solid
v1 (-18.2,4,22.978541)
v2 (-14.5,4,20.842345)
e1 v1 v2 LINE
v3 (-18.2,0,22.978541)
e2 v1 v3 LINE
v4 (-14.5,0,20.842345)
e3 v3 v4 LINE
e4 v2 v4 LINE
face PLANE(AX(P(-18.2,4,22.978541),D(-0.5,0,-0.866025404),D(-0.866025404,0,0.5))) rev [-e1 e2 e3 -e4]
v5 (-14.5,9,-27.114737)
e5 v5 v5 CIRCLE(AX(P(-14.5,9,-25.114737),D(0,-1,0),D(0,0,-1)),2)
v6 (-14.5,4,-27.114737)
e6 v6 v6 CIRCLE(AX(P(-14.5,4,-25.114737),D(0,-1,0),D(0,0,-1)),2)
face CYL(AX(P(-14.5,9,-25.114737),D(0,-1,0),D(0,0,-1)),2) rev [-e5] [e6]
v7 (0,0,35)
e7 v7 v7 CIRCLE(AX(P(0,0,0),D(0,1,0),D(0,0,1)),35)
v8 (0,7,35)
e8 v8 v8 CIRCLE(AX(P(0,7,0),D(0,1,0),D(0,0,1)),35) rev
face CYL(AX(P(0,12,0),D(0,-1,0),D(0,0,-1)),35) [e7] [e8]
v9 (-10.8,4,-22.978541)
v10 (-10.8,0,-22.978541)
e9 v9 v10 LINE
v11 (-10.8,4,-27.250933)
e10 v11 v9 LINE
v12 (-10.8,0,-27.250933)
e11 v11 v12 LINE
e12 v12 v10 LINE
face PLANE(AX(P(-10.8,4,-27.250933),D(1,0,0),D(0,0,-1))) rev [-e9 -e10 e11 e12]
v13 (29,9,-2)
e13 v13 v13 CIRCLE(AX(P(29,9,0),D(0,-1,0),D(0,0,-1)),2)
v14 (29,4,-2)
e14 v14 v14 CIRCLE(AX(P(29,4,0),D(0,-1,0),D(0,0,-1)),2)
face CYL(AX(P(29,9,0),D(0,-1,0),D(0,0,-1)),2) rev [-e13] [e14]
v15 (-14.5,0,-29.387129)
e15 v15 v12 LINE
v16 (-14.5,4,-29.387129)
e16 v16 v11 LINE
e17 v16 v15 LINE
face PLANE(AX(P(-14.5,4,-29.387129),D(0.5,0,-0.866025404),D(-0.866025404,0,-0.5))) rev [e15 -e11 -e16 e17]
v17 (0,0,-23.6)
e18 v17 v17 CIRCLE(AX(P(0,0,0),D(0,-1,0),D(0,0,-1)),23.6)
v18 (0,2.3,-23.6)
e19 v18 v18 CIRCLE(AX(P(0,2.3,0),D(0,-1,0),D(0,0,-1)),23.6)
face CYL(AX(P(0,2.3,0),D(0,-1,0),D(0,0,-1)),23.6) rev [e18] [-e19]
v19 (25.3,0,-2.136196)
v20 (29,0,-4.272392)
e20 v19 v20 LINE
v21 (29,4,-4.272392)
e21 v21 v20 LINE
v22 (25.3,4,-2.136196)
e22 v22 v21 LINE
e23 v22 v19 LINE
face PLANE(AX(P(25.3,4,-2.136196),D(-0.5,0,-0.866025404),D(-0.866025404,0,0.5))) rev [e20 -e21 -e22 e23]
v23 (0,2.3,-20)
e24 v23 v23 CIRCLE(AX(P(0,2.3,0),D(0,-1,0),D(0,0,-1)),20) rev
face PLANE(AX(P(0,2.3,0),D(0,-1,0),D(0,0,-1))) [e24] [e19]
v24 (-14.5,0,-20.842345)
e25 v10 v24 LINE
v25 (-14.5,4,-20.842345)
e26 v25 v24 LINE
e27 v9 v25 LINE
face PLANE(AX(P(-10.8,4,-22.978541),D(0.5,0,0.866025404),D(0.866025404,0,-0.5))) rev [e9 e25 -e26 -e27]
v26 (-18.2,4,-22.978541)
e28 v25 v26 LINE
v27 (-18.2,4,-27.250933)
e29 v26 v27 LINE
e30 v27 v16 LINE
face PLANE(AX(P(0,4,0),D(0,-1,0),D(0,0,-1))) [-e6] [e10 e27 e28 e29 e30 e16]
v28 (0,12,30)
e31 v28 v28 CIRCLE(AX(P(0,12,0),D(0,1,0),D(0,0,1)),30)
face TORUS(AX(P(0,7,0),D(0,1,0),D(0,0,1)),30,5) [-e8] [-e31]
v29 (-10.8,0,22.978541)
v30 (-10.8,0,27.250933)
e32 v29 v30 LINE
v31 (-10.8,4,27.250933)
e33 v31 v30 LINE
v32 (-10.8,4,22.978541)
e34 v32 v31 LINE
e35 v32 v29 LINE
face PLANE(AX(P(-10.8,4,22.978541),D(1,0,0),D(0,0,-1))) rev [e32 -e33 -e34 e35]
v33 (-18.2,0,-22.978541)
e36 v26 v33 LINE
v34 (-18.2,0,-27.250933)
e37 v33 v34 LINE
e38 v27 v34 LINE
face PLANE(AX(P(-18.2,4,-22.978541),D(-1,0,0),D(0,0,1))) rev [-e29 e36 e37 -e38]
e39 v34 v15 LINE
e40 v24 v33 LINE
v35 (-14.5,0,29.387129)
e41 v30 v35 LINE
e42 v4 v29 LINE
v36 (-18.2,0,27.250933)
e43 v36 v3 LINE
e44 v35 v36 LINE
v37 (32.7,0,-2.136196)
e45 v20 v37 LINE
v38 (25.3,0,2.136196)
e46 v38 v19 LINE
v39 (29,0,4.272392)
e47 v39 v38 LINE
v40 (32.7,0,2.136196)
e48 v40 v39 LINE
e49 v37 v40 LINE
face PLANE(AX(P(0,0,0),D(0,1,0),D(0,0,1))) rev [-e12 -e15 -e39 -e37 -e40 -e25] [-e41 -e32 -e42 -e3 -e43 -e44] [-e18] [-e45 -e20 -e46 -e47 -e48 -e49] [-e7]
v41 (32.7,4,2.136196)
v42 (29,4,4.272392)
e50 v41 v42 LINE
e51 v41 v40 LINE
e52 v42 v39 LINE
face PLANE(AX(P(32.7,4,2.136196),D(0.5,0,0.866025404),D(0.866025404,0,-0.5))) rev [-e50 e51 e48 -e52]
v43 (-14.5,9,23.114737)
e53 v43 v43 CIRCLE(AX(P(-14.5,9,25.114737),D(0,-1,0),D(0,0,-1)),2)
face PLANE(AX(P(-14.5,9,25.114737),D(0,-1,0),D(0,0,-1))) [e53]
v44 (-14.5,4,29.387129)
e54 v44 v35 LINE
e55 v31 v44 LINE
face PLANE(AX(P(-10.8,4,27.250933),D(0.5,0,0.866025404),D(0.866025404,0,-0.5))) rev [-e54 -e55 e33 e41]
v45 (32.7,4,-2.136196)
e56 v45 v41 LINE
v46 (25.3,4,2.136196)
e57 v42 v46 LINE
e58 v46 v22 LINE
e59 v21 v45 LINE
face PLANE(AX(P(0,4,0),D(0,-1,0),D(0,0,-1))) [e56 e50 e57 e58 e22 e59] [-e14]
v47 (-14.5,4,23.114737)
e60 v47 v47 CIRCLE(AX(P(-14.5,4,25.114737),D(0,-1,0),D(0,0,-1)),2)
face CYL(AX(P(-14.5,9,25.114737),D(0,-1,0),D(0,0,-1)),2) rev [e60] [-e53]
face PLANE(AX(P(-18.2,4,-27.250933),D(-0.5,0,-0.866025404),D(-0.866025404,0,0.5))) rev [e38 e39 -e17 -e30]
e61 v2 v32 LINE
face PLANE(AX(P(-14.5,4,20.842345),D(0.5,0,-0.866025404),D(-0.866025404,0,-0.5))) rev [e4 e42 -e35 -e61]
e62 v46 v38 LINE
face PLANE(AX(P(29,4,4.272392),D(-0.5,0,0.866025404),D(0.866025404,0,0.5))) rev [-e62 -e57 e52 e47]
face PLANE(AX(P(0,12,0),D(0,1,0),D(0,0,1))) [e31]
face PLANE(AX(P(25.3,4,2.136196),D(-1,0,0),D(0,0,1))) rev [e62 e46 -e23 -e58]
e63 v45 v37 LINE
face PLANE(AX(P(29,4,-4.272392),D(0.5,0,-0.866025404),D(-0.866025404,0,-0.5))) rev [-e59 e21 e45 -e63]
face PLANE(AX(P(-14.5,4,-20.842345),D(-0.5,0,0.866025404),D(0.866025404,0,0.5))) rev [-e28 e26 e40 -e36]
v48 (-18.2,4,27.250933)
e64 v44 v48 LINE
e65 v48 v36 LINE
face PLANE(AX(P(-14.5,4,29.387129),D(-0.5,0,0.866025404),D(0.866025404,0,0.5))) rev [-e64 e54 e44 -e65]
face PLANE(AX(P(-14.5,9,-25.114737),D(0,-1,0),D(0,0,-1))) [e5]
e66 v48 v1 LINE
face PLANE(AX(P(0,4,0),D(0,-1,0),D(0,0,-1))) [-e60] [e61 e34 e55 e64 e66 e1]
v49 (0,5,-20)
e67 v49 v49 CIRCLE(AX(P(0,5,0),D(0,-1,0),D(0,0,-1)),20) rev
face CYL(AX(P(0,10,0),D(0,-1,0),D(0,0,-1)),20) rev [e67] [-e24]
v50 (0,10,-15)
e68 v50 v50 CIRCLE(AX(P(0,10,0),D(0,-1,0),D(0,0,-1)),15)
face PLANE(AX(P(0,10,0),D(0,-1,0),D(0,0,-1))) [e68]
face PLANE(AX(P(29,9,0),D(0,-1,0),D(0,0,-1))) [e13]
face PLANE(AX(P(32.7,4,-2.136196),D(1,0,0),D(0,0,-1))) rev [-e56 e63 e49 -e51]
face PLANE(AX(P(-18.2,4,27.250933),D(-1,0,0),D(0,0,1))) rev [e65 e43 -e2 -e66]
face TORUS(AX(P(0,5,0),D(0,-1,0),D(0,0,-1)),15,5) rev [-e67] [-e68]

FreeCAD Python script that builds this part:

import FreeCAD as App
import Part
import Sketcher
from FreeCAD import Vector
Q = App.Units.Quantity


def edges_at(feature, points):
    """Names of the edges that pass closest to the given points."""
    edges = feature.Shape.Edges
    near = lambda p: min(range(len(edges)), key=lambda i: edges[i].distToShape(Part.Vertex(*p))[0])
    return sorted({f"Edge{near(p) + 1}" for p in points})


def add_polygon(sketch, points):
    """Adds a closed chain of lines whose ends are joined by coincident constraints."""
    first, n = sketch.GeometryCount, len(points)
    for a, b in zip(points, points[1:] + points[:1]):
        sketch.addGeometry(Part.LineSegment(App.Vector(*a, 0), App.Vector(*b, 0)), False)
    for i in range(n):
        sketch.addConstraint(Sketcher.Constraint("Coincident", first + i, 2, first + (i + 1) % n, 1))

doc = App.newDocument("Part")
body = doc.addObject("PartDesign::Body", "Body")

# Sketch on XZ plane
sketch1 = doc.addObject("Sketcher::SketchObject", "Sketch")
body.addObject(sketch1)
sketch1.AttachmentSupport = (doc.XZ_Plane, [""])
sketch1.MapMode = "FlatFace"
sketch1.addGeometry(Part.Circle(Vector(0, 0, 0), Vector(0, 0, 1), 35), False)
sketch1.addConstraint(Sketcher.Constraint("Coincident", 0, 3, -1, 1))
sketch1.addConstraint(Sketcher.Constraint("Diameter", 0, 70.0))
pad1 = doc.addObject("PartDesign::Pad", "Pad")
body.addObject(pad1)
pad1.Profile = sketch1
pad1.Length = 12
pad1.Reversed = True

# Sketch on XZ plane
sketch2 = doc.addObject("Sketcher::SketchObject", "Sketch001")
body.addObject(sketch2)
sketch2.AttachmentSupport = (doc.XZ_Plane, [""])
sketch2.MapMode = "FlatFace"
add_polygon(sketch2, [(-18.2, -27.3), (-14.5, -29.4), (-10.8, -27.3), (-10.8, -23), (-14.5, -20.8), (-18.2, -23)])  # lines 0-5
add_polygon(sketch2, [(32.7, -2.1), (32.7, 2.1), (29, 4.3), (25.3, 2.1), (25.3, -2.1), (29, -4.3)])  # lines 6-11
add_polygon(sketch2, [(-14.5, 29.4), (-18.2, 27.3), (-18.2, 23), (-14.5, 20.8), (-10.8, 23), (-10.8, 27.3)])  # lines 12-17
sketch2.addConstraint(Sketcher.Constraint("Vertical", 2))
sketch2.addConstraint(Sketcher.Constraint("Vertical", 5))
sketch2.addConstraint(Sketcher.Constraint("Vertical", 6))
sketch2.addConstraint(Sketcher.Constraint("Vertical", 9))
sketch2.addConstraint(Sketcher.Constraint("Vertical", 13))
sketch2.addConstraint(Sketcher.Constraint("Vertical", 16))
sketch2.addConstraint(Sketcher.Constraint("Symmetric", 7, 2, 10, 2, -1))
sketch2.addConstraint(Sketcher.Constraint("Symmetric", 5, 2, 12, 2, -1))
sketch2.addConstraint(Sketcher.Constraint("Symmetric", 3, 2, 14, 2, -1))
sketch2.addConstraint(Sketcher.Constraint("Symmetric", 2, 2, 15, 2, -1))
sketch2.addConstraint(Sketcher.Constraint("Symmetric", 0, 2, 17, 2, -1))
sketch2.addConstraint(Sketcher.Constraint("Parallel", 0, 3))
sketch2.addConstraint(Sketcher.Constraint("Parallel", 1, 4))
sketch2.addConstraint(Sketcher.Constraint("Parallel", 3, 7))
sketch2.addConstraint(Sketcher.Constraint("Parallel", 4, 8))
sketch2.addConstraint(Sketcher.Constraint("Parallel", 7, 10))
sketch2.addConstraint(Sketcher.Constraint("Parallel", 8, 11))
sketch2.addConstraint(Sketcher.Constraint("Parallel", 11, 12))
sketch2.addConstraint(Sketcher.Constraint("Parallel", 10, 14))
sketch2.addConstraint(Sketcher.Constraint("Parallel", 14, 17))
sketch2.addConstraint(Sketcher.Constraint("Horizontal", 2, 2, 4, 2))
sketch2.addConstraint(Sketcher.Constraint("Horizontal", 1, 2, 5, 2))
sketch2.addConstraint(Sketcher.Constraint("Horizontal", 6, 2, 8, 2))
sketch2.addConstraint(Sketcher.Constraint("Equal", 5, 6))
sketch2.addConstraint(Sketcher.Constraint("Equal", 4, 7))
sketch2.addConstraint(Sketcher.Constraint("Angle", 0, Q("-30 deg")))
sketch2.addConstraint(Sketcher.Constraint("DistanceX", -1, 1, 7, 2, 29.0))
sketch2.addConstraint(Sketcher.Constraint("DistanceX", 0, 2, -1, 1, 14.5))
sketch2.addConstraint(Sketcher.Constraint("DistanceX", 1, 2, -1, 1, 10.8))
sketch2.addConstraint(Sketcher.Constraint("DistanceY", 2, 1, 2, 2, 4.272392))
sketch2.addConstraint(Sketcher.Constraint("DistanceY", 0, 2, -1, 1, 29.387129))
pocket1 = doc.addObject("PartDesign::Pocket", "Pocket")
body.addObject(pocket1)
pocket1.Profile = sketch2
pocket1.Length = 4

# Sketch on XZ plane
sketch3 = doc.addObject("Sketcher::SketchObject", "Sketch002")
body.addObject(sketch3)
sketch3.AttachmentSupport = (doc.XZ_Plane, [""])
sketch3.MapMode = "FlatFace"
sketch3.AttachmentOffset = App.Placement(Vector(0, 0, -4), App.Rotation())
sketch3.addGeometry(Part.Circle(Vector(29, 0, 0), Vector(0, 0, 1), 2), False)
sketch3.addGeometry(Part.Circle(Vector(-14.5, -25.1, 0), Vector(0, 0, 1), 2), False)
sketch3.addGeometry(Part.Circle(Vector(-14.5, 25.1, 0), Vector(0, 0, 1), 2), False)
sketch3.addConstraint(Sketcher.Constraint("Equal", 0, 1))
sketch3.addConstraint(Sketcher.Constraint("Equal", 1, 2))
sketch3.addConstraint(Sketcher.Constraint("Symmetric", 1, 3, 2, 3, -1))
sketch3.addConstraint(Sketcher.Constraint("PointOnObject", 0, 3, -1))
sketch3.addConstraint(Sketcher.Constraint("Diameter", 0, 4.0))
sketch3.addConstraint(Sketcher.Constraint("DistanceX", -1, 1, 0, 3, 29.0))
sketch3.addConstraint(Sketcher.Constraint("DistanceX", 1, 3, -1, 1, 14.5))
sketch3.addConstraint(Sketcher.Constraint("DistanceY", 1, 3, -1, 1, 25.114737))
pocket2 = doc.addObject("PartDesign::Pocket", "Pocket001")
body.addObject(pocket2)
pocket2.Profile = sketch3
pocket2.Length = 5
doc.recompute()

fillet = doc.addObject("PartDesign::Fillet", "Fillet")
body.addObject(fillet)
fillet.Base = (pocket2, edges_at(pocket2, [(0, 12, -35)]))
fillet.Radius = 5

# Sketch on XZ plane
sketch4 = doc.addObject("Sketcher::SketchObject", "Sketch003")
body.addObject(sketch4)
sketch4.AttachmentSupport = (doc.XZ_Plane, [""])
sketch4.MapMode = "FlatFace"
sketch4.addGeometry(Part.Circle(Vector(0, 0, 0), Vector(0, 0, 1), 20), False)
sketch4.addConstraint(Sketcher.Constraint("Coincident", 0, 3, -1, 1))
sketch4.addConstraint(Sketcher.Constraint("Diameter", 0, 40.0))
pocket3 = doc.addObject("PartDesign::Pocket", "Pocket002")
body.addObject(pocket3)
pocket3.Profile = sketch4
pocket3.Length = 10
doc.recompute()

fillet2 = doc.addObject("PartDesign::Fillet", "Fillet001")
body.addObject(fillet2)
fillet2.Base = (pocket3, edges_at(pocket3, [(0, 10, 20)]))
fillet2.Radius = 5

# Sketch on XZ plane
sketch5 = doc.addObject("Sketcher::SketchObject", "Sketch004")
body.addObject(sketch5)
sketch5.AttachmentSupport = (doc.XZ_Plane, [""])
sketch5.MapMode = "FlatFace"
sketch5.addGeometry(Part.Circle(Vector(0, 0, 0), Vector(0, 0, 1), 24), False)
sketch5.addConstraint(Sketcher.Constraint("Coincident", 0, 3, -1, 1))
sketch5.addConstraint(Sketcher.Constraint("Diameter", 0, 47.2))
pocket4 = doc.addObject("PartDesign::Pocket", "Pocket003")
body.addObject(pocket4)
pocket4.Profile = sketch5
pocket4.Length = 2.3

doc.recompute()
